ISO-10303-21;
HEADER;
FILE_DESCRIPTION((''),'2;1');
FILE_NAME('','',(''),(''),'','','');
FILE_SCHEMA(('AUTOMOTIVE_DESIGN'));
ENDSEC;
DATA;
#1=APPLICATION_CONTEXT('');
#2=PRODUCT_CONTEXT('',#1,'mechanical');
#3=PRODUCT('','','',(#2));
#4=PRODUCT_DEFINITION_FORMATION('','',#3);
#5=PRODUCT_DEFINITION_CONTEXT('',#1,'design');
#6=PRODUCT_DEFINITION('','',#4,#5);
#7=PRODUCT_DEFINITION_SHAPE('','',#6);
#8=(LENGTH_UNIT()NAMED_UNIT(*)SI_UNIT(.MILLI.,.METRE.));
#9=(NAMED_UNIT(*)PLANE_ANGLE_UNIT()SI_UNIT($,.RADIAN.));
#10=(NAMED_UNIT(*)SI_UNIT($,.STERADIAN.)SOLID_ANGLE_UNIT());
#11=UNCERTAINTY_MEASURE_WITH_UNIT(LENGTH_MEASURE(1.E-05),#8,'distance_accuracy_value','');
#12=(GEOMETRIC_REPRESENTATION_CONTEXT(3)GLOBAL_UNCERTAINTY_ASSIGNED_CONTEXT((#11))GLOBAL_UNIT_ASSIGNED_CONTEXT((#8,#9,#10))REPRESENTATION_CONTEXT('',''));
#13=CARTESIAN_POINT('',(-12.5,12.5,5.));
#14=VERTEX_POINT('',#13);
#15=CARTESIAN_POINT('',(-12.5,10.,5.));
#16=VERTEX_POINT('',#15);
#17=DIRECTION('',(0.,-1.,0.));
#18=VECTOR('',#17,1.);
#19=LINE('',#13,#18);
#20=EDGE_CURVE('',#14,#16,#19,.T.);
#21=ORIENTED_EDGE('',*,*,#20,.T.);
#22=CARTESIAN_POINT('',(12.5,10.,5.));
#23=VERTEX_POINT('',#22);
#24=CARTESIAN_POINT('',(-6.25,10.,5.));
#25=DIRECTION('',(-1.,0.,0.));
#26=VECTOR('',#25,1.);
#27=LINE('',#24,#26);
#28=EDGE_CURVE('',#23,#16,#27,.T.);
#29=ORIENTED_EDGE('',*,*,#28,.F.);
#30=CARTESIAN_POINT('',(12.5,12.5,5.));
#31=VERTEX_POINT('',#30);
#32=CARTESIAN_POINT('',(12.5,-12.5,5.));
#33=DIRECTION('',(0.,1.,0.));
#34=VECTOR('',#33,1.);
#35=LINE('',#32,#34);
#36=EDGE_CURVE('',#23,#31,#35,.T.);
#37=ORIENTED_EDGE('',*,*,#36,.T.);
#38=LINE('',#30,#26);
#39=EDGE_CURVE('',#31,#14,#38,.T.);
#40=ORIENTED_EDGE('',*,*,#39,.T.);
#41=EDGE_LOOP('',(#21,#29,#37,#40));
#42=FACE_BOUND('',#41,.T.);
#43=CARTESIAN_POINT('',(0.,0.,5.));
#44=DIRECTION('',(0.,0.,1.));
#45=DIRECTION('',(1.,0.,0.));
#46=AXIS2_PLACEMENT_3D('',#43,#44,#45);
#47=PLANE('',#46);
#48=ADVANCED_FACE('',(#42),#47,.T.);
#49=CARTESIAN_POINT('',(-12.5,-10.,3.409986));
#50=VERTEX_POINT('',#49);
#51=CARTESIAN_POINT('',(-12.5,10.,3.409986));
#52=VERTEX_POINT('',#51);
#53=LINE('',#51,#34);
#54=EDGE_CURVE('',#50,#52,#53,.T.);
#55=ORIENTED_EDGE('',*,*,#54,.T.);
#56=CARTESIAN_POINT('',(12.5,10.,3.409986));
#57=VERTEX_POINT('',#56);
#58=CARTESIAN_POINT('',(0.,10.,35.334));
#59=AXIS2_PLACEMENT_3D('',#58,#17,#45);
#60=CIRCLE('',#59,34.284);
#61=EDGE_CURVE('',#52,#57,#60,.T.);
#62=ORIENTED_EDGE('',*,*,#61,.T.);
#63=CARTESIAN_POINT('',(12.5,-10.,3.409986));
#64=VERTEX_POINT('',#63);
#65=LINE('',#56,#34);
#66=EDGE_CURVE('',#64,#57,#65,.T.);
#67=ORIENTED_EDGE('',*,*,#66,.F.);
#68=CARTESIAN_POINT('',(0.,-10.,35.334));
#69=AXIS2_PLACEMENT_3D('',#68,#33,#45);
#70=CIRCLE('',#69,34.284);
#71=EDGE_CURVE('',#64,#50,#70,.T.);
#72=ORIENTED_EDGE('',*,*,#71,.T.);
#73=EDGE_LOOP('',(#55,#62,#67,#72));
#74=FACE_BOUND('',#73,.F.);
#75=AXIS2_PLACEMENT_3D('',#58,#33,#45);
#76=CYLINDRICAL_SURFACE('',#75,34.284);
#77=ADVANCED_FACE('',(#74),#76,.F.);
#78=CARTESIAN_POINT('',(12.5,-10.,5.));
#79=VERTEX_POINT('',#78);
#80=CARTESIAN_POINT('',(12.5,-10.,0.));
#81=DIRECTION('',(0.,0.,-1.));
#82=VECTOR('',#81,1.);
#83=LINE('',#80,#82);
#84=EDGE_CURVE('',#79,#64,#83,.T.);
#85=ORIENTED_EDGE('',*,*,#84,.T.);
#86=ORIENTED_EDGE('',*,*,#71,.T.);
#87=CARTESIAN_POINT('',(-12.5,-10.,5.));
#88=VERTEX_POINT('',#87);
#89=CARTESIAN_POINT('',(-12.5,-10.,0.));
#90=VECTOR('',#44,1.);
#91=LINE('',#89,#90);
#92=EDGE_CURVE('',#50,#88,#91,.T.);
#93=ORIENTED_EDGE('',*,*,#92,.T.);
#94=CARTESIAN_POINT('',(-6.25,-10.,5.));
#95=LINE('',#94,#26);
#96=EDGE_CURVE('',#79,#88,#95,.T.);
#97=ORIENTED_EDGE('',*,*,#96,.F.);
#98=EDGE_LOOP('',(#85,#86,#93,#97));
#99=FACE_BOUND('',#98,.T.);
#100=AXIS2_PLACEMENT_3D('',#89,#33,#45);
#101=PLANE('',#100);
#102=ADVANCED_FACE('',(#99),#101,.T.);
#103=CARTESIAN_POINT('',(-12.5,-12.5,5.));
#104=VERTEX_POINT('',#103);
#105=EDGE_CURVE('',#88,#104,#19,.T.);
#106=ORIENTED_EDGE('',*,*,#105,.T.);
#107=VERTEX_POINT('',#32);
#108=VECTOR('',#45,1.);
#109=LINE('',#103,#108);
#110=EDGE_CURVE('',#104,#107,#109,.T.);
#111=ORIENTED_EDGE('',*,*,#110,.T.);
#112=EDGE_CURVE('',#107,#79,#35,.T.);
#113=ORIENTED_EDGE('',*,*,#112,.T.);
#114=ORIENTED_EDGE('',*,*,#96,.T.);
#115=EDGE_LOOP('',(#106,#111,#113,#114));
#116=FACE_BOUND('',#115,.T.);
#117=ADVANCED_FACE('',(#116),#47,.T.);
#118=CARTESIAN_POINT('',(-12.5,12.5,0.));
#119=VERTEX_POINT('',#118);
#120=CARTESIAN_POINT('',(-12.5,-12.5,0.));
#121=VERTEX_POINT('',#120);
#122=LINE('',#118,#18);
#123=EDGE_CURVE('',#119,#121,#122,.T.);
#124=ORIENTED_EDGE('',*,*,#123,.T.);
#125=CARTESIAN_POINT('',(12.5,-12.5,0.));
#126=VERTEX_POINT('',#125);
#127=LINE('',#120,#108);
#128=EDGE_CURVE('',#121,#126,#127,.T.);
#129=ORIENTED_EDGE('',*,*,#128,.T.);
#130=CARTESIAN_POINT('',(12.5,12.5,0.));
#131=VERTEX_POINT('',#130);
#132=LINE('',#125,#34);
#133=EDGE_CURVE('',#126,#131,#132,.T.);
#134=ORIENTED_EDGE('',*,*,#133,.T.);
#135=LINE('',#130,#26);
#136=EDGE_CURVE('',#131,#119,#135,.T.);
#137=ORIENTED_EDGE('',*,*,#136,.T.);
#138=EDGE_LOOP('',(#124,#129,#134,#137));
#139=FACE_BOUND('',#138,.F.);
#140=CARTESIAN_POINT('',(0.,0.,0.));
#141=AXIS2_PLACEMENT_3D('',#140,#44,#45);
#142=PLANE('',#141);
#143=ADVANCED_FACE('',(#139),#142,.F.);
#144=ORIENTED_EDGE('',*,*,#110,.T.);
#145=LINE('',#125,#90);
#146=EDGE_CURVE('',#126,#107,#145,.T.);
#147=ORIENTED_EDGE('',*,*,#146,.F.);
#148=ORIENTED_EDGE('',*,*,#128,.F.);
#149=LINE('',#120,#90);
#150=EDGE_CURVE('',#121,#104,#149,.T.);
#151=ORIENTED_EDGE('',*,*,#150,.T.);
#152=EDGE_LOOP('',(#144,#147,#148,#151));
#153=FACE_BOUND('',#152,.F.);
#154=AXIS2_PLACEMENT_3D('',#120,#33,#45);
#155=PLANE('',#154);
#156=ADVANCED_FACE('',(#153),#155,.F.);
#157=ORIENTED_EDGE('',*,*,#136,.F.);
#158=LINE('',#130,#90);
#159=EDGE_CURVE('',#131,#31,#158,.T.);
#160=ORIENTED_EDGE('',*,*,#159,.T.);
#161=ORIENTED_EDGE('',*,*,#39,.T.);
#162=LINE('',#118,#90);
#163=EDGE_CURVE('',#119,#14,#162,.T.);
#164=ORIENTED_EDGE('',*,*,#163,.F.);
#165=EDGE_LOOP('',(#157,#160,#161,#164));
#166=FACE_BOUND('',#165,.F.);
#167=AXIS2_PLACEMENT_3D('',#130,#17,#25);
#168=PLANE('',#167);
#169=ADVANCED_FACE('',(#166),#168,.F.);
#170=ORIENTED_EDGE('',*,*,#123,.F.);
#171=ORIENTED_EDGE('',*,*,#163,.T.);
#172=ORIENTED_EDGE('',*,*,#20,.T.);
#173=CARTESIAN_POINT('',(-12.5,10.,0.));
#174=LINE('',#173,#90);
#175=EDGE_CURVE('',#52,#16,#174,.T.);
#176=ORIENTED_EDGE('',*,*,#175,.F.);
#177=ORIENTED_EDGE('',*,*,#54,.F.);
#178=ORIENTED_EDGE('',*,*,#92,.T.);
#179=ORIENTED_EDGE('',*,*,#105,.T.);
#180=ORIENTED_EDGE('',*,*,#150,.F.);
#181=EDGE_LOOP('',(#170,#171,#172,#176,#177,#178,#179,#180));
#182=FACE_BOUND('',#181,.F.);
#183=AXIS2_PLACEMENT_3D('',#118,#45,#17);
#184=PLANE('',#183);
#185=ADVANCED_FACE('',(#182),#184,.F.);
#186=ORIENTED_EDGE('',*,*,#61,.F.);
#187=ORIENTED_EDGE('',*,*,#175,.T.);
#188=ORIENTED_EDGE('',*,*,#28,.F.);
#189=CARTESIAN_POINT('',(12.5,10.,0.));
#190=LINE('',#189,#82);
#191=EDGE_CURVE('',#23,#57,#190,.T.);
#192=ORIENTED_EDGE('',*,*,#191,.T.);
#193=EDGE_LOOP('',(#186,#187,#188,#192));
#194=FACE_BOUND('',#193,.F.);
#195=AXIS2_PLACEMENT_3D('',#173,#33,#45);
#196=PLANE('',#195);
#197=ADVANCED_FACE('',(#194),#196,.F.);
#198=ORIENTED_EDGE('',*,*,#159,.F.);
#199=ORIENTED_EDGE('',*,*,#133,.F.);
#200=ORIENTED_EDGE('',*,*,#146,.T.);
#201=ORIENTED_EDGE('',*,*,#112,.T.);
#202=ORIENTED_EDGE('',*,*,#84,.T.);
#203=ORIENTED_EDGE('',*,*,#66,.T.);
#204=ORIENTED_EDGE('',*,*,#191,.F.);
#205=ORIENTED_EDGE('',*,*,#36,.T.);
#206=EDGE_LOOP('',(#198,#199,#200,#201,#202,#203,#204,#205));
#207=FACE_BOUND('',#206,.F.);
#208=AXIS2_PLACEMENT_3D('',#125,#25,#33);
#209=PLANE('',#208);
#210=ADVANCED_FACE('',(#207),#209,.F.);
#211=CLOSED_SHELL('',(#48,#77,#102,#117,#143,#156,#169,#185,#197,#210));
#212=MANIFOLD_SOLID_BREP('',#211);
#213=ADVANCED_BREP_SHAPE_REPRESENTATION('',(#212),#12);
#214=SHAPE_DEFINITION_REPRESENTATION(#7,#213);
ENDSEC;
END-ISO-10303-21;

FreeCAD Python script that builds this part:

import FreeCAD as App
import Part
import Sketcher


def add_polygon(sketch, points):
    """Adds a closed chain of lines whose ends are joined by coincident constraints."""
    first, n = sketch.GeometryCount, len(points)
    for a, b in zip(points, points[1:] + points[:1]):
        sketch.addGeometry(Part.LineSegment(App.Vector(*a, 0), App.Vector(*b, 0)), False)
    for i in range(n):
        sketch.addConstraint(Sketcher.Constraint("Coincident", first + i, 2, first + (i + 1) % n, 1))

doc = App.newDocument("Part")
body = doc.addObject("PartDesign::Body", "Body")

sketch1 = body.newObject("Sketcher::SketchObject", "Sketch")
sketch1.AttachmentSupport = (doc.getObject("XY_Plane"), [""])
sketch1.MapMode = "FlatFace"
add_polygon(sketch1, [(-12, 12), (-12, -12), (12, -12), (12, 12)])
sketch1.addConstraint(Sketcher.Constraint("Vertical", 0))
sketch1.addConstraint(Sketcher.Constraint("Horizontal", 1))
sketch1.addConstraint(Sketcher.Constraint("Vertical", 2))
sketch1.addConstraint(Sketcher.Constraint("Horizontal", 3))
sketch1.addConstraint(Sketcher.Constraint("Symmetric", 0, 2, 2, 2, -1, 1))
sketch1.addConstraint(Sketcher.Constraint("Equal", 3, 0))
sketch1.addConstraint(Sketcher.Constraint("DistanceX", 1, 1, 1, 2, 25.0))
pad1 = body.newObject("PartDesign::Pad", "Pad")
pad1.Profile = sketch1
pad1.Length = 5

sketch2 = body.newObject("Sketcher::SketchObject", "Sketch001")
sketch2.AttachmentSupport = (doc.getObject("XZ_Plane"), [""])
sketch2.MapMode = "FlatFace"
sketch2.AttachmentOffset = App.Placement(App.Vector(0, 0, -10), App.Rotation())
sketch2.addGeometry(Part.Circle(App.Vector(0, 35, 0), App.Vector(0, 0, 1), 34), False)
sketch2.addConstraint(Sketcher.Constraint("PointOnObject", 0, 3, -2))
sketch2.addConstraint(Sketcher.Constraint("Diameter", 0, 68.568))
sketch2.addConstraint(Sketcher.Constraint("DistanceY", -1, 1, 0, 3, 35.334))
pocket1 = body.newObject("PartDesign::Pocket", "Pocket")
pocket1.Profile = sketch2
pocket1.Length = 20
pocket1.Reversed = True

doc.recompute()
